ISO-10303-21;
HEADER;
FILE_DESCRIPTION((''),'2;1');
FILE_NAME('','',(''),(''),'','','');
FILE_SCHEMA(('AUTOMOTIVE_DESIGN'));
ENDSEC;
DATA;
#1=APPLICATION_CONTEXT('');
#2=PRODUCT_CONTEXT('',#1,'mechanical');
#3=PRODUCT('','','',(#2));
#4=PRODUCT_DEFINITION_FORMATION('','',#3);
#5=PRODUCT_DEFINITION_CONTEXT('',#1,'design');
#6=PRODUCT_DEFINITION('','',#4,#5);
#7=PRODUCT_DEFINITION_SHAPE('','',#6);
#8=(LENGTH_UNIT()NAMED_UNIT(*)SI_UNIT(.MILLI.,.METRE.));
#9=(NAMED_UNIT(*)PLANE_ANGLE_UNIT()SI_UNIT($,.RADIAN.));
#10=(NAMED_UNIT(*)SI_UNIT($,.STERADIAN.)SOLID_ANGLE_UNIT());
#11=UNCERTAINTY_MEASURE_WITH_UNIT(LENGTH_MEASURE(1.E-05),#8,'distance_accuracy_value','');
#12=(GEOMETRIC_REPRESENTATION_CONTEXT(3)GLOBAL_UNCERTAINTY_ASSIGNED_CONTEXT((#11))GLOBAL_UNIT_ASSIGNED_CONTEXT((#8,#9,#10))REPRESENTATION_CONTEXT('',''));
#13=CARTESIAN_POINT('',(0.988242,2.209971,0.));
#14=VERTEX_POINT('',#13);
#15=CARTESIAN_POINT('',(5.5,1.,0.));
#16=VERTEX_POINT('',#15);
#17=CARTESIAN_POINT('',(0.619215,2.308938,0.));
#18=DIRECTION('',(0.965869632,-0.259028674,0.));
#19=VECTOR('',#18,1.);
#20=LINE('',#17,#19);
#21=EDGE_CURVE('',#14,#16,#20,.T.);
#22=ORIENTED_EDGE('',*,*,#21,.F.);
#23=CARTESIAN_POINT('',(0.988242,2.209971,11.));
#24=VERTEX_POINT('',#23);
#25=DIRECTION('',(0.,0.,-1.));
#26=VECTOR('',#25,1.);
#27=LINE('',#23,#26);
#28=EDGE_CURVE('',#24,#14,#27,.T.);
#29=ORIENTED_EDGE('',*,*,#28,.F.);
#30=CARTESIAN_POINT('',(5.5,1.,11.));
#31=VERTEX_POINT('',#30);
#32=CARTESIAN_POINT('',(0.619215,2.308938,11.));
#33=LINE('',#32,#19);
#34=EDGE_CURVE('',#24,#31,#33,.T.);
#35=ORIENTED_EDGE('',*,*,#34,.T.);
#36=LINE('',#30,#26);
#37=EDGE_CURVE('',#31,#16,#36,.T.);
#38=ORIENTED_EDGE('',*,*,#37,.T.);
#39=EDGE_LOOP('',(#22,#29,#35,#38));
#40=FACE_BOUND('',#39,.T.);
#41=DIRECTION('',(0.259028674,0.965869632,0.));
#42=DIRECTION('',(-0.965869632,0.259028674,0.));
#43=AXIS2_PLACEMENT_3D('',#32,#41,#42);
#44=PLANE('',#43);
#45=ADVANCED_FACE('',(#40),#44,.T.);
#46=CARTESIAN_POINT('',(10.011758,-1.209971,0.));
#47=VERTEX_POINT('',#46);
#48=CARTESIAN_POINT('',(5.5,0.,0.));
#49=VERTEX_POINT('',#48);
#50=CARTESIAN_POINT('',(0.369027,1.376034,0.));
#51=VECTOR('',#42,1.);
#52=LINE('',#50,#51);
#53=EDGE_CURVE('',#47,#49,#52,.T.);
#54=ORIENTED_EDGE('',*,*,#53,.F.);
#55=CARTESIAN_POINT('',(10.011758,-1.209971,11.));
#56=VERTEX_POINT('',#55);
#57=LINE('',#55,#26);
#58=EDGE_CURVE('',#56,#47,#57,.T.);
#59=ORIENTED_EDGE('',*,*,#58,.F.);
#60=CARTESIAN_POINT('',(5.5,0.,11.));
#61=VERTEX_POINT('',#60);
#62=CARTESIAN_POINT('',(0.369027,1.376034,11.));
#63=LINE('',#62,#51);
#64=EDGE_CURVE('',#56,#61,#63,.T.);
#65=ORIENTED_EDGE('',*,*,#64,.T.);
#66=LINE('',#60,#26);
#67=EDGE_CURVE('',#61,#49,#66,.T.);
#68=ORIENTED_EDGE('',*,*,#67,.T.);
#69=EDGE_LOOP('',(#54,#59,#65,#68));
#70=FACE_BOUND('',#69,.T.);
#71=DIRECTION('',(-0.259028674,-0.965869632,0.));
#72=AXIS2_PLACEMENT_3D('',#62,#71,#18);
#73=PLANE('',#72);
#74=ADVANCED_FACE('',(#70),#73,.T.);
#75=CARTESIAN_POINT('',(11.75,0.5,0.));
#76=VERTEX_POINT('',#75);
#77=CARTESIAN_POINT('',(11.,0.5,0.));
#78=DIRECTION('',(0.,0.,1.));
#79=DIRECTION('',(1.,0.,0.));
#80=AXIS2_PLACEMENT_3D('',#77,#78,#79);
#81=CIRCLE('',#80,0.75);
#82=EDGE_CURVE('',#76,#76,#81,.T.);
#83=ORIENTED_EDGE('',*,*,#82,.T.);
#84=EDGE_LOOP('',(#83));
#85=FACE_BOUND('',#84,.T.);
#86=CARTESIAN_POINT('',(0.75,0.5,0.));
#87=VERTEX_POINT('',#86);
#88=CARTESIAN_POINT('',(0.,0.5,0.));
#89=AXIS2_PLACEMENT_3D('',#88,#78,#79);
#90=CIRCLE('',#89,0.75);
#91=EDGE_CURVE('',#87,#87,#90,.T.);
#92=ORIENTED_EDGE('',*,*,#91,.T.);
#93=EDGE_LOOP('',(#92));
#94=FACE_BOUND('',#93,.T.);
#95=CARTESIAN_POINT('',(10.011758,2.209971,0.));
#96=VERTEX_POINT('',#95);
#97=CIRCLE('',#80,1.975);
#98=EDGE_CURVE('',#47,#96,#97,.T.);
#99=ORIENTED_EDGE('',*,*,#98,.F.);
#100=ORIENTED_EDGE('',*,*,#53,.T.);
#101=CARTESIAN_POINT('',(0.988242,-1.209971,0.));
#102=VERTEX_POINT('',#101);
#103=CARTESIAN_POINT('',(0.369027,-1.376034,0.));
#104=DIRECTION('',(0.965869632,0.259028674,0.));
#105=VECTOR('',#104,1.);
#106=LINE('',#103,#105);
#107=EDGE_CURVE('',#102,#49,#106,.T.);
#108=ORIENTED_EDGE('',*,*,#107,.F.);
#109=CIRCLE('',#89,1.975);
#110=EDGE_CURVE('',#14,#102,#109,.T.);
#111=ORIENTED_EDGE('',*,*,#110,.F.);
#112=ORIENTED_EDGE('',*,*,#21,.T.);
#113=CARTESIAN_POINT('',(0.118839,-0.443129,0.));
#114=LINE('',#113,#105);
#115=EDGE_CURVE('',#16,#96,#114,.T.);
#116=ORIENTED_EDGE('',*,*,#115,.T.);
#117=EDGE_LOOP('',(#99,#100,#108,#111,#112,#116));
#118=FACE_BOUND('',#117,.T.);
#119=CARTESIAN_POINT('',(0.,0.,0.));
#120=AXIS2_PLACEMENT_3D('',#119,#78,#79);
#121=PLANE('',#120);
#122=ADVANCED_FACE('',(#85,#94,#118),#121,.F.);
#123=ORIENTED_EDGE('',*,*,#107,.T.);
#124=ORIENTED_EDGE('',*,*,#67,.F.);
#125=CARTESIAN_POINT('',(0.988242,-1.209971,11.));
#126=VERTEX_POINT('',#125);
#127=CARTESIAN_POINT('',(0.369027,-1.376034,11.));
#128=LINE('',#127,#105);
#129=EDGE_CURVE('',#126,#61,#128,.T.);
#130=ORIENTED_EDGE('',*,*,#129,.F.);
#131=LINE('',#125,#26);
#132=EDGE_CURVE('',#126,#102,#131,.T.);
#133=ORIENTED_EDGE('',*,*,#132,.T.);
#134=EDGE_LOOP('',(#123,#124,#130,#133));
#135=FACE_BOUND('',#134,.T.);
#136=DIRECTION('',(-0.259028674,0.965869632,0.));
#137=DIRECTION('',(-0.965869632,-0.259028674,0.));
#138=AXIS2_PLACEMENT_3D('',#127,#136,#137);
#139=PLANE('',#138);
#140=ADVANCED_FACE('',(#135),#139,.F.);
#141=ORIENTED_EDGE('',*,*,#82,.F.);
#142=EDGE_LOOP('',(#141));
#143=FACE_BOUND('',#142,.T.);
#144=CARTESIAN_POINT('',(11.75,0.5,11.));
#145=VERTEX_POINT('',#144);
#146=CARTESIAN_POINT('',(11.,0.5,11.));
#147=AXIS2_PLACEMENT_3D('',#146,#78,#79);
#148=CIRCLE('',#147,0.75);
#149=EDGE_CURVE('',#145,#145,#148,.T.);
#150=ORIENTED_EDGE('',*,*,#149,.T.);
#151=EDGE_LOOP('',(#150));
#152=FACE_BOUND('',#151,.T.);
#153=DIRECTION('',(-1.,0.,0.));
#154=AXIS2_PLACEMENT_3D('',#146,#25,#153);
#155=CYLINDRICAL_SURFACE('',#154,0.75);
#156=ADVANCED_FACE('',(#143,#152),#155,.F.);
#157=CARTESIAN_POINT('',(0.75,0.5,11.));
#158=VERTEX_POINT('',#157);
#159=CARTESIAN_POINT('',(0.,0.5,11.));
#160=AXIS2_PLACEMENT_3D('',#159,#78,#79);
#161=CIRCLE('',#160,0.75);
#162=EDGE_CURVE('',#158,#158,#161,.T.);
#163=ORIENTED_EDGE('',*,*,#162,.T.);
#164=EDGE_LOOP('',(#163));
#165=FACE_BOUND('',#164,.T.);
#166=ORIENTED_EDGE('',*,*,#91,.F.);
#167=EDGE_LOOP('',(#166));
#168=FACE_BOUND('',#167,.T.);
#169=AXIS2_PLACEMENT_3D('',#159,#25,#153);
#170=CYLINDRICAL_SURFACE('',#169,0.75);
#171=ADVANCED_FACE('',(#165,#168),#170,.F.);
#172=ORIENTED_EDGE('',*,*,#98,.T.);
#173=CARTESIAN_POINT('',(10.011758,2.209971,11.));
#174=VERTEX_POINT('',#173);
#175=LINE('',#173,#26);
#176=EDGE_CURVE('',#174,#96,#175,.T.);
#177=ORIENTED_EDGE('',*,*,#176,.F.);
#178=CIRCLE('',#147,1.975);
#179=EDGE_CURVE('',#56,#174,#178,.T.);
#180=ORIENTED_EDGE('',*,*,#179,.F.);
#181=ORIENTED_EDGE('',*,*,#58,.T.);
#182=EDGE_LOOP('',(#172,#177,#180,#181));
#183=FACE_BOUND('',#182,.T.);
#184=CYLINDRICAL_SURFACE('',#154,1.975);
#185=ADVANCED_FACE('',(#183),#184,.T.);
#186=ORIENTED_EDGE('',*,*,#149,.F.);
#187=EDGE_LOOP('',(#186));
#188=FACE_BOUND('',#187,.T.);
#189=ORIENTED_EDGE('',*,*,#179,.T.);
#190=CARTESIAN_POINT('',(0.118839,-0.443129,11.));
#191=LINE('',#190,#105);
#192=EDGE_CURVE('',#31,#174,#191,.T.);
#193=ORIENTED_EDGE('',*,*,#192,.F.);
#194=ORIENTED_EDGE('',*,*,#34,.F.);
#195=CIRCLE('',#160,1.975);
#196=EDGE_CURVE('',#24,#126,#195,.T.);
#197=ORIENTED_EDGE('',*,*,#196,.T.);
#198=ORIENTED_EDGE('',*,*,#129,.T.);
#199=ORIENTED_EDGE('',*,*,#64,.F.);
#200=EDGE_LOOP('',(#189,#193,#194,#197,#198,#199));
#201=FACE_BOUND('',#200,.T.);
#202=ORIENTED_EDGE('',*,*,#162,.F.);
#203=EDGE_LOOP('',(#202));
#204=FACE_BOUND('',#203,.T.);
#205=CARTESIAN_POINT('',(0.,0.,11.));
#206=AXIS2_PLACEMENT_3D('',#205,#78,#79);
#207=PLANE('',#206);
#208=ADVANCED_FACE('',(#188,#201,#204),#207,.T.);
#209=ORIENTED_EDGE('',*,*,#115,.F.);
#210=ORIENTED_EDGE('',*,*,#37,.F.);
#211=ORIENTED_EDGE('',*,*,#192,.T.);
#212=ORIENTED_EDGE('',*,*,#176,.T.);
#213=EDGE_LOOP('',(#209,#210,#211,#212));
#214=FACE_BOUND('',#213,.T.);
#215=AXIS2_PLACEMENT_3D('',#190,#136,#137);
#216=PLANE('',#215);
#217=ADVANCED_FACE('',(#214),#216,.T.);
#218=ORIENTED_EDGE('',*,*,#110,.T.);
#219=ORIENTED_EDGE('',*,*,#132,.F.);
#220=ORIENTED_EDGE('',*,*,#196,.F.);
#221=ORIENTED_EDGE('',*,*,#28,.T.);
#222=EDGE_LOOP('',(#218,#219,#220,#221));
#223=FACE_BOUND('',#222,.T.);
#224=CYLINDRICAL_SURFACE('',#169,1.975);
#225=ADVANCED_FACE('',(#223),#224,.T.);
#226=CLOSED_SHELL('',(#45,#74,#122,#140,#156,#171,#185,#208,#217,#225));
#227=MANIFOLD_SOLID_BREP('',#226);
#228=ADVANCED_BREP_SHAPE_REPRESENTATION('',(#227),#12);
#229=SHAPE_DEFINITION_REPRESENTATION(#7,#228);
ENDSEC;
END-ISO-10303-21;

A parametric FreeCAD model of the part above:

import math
import FreeCAD as App
import Part
import Sketcher

V = App.Vector
Q = App.Units.Quantity

doc = App.newDocument("Part")
body = doc.addObject("PartDesign::Body", "Body")

sketch1 = body.newObject("Sketcher::SketchObject", "Sketch")
sketch1.AttachmentSupport = (doc.getObject("XY_Plane"), [""])
sketch1.MapMode = "FlatFace"
sketch1.addGeometry([
    Part.LineSegment(V(10, 2.2, 0), V(5.5, 1, 0)),
    Part.LineSegment(V(5.5, 1, 0), V(1, 2.2, 0)),
    Part.ArcOfCircle(Part.Circle(V(0, 0.5, 0), V(0, 0, 1), 2), math.radians(60), math.radians(300)),
    Part.LineSegment(V(1, -1.2, 0), V(5.5, 0, 0)),
    Part.LineSegment(V(5.5, 0, 0), V(10, -1.2, 0)),
    Part.ArcOfCircle(Part.Circle(V(11, 0.5, 0), V(0, 0, 1), 2), math.radians(-120), math.radians(120)),
    Part.Circle(V(0, 0.5, 0), V(0, 0, 1), 0.8),
    Part.Circle(V(11, 0.5, 0), V(0, 0, 1), 0.8),
], False)
sketch1.addConstraint([
    Sketcher.Constraint("Coincident", 0, 2, 1, 1),
    Sketcher.Constraint("Coincident", 1, 2, 2, 1),
    Sketcher.Constraint("Coincident", 2, 2, 3, 1),
    Sketcher.Constraint("Coincident", 3, 2, 4, 1),
    Sketcher.Constraint("Coincident", 4, 2, 5, 1),
    Sketcher.Constraint("Coincident", 5, 2, 0, 1),
    Sketcher.Constraint("Coincident", 6, 3, 2, 3),
    Sketcher.Constraint("Coincident", 7, 3, 5, 3),
    Sketcher.Constraint("Equal", 2, 5),
    Sketcher.Constraint("Equal", 6, 7),
    Sketcher.Constraint("PointOnObject", 2, 3, -2),
    Sketcher.Constraint("PointOnObject", 3, 2, -1),
    Sketcher.Constraint("Parallel", 0, 3),
    Sketcher.Constraint("Parallel", 1, 4),
    Sketcher.Constraint("Horizontal", 2, 3, 5, 3),
    Sketcher.Constraint("Horizontal", 2, 2, 4, 2),
    Sketcher.Constraint("Horizontal", 1, 2, 5, 2),
    Sketcher.Constraint("Vertical", 1, 2, 2, 2),
    Sketcher.Constraint("Vertical", 0, 2, 3, 2),
    Sketcher.Constraint("Diameter", 6, Q("1.5 mm")),
    Sketcher.Constraint("DistanceX", -1, 1, 5, 3, Q("11 mm")),
    Sketcher.Constraint("DistanceY", -1, 1, 0, 2, Q("1 mm")),
    Sketcher.Constraint("Radius", 2, Q("1.975 mm")),
    Sketcher.Constraint("DistanceY", -1, 1, 1, 2, Q("2.209971 mm")),
])
pad1 = body.newObject("PartDesign::Pad", "Pad")
pad1.Profile = sketch1
pad1.Length = 11

doc.recompute()
